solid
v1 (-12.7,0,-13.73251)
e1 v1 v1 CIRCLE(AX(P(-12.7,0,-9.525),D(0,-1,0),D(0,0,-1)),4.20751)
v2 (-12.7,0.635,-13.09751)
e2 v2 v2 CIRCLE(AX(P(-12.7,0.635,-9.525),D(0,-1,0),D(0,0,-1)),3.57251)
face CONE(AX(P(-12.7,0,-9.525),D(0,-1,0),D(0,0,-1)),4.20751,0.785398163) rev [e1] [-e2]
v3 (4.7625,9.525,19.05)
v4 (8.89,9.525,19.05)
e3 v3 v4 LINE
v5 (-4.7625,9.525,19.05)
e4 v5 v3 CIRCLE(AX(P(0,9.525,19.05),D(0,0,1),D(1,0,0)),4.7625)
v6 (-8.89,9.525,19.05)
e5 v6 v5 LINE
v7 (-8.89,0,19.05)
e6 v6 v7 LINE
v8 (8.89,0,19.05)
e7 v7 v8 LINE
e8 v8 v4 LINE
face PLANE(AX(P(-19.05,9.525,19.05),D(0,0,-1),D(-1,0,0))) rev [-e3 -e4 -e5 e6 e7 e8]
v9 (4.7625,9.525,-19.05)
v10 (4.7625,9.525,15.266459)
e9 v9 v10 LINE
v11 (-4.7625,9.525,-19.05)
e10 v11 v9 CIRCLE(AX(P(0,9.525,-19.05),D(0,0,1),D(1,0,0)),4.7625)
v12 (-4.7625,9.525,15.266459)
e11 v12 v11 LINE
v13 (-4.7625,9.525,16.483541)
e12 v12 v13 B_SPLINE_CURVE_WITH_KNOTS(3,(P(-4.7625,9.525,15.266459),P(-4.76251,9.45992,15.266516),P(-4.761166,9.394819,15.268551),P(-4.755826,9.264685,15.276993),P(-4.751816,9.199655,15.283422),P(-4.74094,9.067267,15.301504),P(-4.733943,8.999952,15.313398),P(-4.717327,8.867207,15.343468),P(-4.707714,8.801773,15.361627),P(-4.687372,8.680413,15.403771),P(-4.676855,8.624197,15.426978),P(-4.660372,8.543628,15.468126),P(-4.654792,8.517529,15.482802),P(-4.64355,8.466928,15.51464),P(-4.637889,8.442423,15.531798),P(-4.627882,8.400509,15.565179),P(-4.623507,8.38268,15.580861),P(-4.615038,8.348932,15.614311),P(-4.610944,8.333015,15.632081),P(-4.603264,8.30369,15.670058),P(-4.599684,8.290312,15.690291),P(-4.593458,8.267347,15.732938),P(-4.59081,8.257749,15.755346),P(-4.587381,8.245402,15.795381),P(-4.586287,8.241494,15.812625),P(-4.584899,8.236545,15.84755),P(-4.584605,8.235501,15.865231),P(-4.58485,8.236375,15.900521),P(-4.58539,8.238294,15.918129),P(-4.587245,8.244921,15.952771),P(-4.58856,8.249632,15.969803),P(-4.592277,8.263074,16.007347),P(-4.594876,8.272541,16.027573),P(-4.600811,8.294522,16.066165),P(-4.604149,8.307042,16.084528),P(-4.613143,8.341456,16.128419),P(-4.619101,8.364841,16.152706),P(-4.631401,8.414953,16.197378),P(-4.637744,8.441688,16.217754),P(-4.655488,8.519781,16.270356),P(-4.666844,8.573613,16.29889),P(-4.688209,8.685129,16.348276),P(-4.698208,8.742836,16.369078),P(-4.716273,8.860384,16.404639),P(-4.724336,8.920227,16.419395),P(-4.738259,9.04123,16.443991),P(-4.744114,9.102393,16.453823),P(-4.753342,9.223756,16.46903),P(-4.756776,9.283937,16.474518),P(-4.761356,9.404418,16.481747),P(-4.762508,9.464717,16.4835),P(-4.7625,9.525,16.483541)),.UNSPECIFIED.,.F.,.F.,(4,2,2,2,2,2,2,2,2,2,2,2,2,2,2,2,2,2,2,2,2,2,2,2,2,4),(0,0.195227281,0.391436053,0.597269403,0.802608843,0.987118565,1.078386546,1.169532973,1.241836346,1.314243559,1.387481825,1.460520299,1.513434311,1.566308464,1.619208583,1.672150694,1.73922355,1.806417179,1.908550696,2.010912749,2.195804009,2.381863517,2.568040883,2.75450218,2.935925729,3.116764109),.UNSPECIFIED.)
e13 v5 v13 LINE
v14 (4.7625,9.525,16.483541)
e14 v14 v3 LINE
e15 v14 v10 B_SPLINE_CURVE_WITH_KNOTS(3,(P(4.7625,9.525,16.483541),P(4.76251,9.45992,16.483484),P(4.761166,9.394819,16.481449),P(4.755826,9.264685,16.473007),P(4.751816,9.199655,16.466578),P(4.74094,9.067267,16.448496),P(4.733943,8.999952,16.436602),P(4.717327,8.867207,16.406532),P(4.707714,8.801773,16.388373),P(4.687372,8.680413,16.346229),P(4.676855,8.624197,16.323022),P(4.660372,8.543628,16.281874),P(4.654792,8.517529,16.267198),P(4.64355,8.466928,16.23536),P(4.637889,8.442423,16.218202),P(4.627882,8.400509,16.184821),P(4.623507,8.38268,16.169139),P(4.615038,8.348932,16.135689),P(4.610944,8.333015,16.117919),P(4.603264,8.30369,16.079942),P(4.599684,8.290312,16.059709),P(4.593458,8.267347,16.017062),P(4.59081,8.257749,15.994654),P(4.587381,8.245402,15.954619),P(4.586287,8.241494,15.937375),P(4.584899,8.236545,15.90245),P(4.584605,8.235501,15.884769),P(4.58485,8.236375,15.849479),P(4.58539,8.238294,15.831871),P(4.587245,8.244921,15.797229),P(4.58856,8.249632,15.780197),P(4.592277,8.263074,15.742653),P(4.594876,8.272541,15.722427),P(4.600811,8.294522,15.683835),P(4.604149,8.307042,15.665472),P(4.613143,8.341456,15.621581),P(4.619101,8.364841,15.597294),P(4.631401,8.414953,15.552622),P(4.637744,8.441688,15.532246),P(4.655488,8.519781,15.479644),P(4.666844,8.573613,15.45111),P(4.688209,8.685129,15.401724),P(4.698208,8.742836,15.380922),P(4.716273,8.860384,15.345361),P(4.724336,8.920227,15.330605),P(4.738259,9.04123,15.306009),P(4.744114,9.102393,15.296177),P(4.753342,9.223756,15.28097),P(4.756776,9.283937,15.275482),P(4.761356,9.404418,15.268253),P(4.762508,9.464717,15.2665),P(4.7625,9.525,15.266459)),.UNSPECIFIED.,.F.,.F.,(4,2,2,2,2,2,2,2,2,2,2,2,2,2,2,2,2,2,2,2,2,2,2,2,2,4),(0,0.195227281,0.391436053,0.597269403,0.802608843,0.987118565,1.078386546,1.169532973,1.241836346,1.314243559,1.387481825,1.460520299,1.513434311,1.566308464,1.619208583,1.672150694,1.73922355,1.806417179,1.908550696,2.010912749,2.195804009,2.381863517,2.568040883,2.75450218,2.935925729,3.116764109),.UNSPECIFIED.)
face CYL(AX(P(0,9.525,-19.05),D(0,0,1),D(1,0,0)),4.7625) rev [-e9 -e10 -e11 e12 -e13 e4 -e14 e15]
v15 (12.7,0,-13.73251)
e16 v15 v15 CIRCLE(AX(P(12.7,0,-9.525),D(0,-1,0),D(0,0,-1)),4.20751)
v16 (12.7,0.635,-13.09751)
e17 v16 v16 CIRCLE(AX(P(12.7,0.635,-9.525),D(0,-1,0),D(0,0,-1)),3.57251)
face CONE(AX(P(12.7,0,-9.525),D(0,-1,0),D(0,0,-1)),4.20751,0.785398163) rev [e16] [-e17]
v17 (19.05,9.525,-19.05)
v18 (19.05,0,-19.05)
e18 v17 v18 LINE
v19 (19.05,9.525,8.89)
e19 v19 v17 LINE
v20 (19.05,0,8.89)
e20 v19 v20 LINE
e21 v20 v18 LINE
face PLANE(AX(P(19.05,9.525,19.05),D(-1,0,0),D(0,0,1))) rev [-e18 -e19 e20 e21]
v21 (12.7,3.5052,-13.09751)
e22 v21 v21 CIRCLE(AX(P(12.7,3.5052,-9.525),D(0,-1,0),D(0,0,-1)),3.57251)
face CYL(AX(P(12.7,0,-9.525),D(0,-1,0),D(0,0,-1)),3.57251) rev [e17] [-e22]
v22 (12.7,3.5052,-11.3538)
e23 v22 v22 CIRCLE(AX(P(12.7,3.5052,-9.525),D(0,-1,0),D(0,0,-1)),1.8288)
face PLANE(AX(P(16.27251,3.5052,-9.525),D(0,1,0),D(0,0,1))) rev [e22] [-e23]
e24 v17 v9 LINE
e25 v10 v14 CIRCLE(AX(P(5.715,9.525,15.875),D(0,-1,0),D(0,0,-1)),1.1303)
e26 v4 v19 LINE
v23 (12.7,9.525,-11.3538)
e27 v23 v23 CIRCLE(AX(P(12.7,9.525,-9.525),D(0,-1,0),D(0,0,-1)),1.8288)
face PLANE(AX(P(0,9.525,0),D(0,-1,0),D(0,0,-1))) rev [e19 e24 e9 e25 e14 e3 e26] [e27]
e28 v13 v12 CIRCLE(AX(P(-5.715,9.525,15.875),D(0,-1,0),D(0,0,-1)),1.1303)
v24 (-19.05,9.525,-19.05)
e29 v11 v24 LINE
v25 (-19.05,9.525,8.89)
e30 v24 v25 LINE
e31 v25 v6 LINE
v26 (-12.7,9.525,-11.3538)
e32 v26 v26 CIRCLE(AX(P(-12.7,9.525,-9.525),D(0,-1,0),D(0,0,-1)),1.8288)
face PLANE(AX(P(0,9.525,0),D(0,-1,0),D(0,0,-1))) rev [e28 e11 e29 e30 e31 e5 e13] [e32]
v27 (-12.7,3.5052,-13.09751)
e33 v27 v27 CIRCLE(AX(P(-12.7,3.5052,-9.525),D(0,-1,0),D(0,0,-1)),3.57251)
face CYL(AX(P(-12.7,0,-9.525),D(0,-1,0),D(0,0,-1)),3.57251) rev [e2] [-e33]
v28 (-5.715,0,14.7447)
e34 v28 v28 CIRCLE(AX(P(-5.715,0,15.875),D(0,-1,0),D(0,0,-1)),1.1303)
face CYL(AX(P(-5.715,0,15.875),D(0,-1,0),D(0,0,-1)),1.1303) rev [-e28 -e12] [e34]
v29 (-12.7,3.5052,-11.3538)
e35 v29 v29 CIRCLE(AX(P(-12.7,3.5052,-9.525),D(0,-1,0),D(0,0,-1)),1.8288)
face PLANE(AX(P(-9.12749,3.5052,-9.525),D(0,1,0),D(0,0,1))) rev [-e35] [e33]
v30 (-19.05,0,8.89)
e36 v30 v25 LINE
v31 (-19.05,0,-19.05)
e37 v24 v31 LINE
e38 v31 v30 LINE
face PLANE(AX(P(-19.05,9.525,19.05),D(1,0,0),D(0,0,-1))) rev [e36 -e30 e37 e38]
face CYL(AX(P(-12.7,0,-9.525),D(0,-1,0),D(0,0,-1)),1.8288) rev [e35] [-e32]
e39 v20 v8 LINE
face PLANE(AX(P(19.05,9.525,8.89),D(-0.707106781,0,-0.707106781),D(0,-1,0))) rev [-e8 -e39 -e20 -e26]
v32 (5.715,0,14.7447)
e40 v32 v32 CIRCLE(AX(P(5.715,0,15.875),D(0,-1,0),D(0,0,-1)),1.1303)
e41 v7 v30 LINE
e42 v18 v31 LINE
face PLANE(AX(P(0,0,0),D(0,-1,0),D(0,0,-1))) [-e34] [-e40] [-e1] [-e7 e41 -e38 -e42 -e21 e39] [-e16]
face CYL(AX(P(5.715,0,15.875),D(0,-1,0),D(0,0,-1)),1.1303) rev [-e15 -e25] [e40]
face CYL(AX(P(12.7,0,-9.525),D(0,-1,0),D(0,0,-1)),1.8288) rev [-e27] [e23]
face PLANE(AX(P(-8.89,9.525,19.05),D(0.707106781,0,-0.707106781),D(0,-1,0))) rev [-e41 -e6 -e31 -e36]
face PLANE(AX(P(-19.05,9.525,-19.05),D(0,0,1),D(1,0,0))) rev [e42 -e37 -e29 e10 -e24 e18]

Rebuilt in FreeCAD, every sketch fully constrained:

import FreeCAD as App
import Part
import Sketcher
from FreeCAD import Vector
Q = App.Units.Quantity


def edges_at(feature, points):
    """Names of the edges that pass closest to the given points."""
    edges = feature.Shape.Edges
    near = lambda p: min(range(len(edges)), key=lambda i: edges[i].distToShape(Part.Vertex(*p))[0])
    return sorted({f"Edge{near(p) + 1}" for p in points})

doc = App.newDocument("Part")
params = doc.addObject("Spreadsheet::Sheet", "Params")
for row, (alias, value) in enumerate([
    ("sketch1_width", "1.5 in"),
    ("pad1_length", "0.375 in"),
    ("sketch2_diameter", "0.375 in"),
    ("sketch3_diameter", "0.089 in"),
    ("hole_diameter", "0.089 in"),
    ("sketch4_width", "0.375 in"),
    ("sketch4_width2", "0.113 in"),
    ("sketch4_width3", "0.237 in"),
    ("sketch4_height", "0.072 in"),
    ("groove_angle", "360 deg"),
    ("linearpattern_pitch", "1 in"),
    ("chamfer_size", "0.4 in"),
], start=1):
    params.set(f"A{row}", alias)
    params.set(f"B{row}", "=" + value)
    params.setAlias(f"B{row}", alias)

body = doc.addObject("PartDesign::Body", "Body")

# Sketch on XZ plane
sketch1 = body.newObject("Sketcher::SketchObject", "Sketch")
sketch1.AttachmentSupport = (doc.getObject("XZ_Plane"), [""])
sketch1.MapMode = "FlatFace"
sketch1.addGeometry([
    Part.LineSegment(Vector(-19.05, -19.05, 0), Vector(-19.05, 19.05, 0)),
    Part.LineSegment(Vector(-19.05, 19.05, 0), Vector(19.05, 19.05, 0)),
    Part.LineSegment(Vector(19.05, 19.05, 0), Vector(19.05, -19.05, 0)),
    Part.LineSegment(Vector(19.05, -19.05, 0), Vector(-19.05, -19.05, 0)),
], False)
sketch1.addConstraint([
    Sketcher.Constraint("Coincident", 0, 2, 1, 1),
    Sketcher.Constraint("Coincident", 1, 2, 2, 1),
    Sketcher.Constraint("Coincident", 2, 2, 3, 1),
    Sketcher.Constraint("Coincident", 3, 2, 0, 1),
    Sketcher.Constraint("Vertical", 0),
    Sketcher.Constraint("Horizontal", 1),
    Sketcher.Constraint("Vertical", 2),
    Sketcher.Constraint("Horizontal", 3),
    Sketcher.Constraint("Symmetric", 0, 2, 2, 2, -1, 1),
    Sketcher.Constraint("Equal", 3, 0),
    Sketcher.Constraint("DistanceX", 1, 1, 1, 2, Q("1.5 in")),
])
sketch1.setExpression("Constraints[10]", "Params.sketch1_width")
pad1 = body.newObject("PartDesign::Pad", "Pad")
pad1.Profile = sketch1
pad1.setExpression("Length", "Params.pad1_length")
pad1.Reversed = True

# Sketch on XY plane
sketch2 = body.newObject("Sketcher::SketchObject", "Sketch001")
sketch2.AttachmentSupport = (doc.getObject("XY_Plane"), [""])
sketch2.MapMode = "FlatFace"
sketch2.AttachmentOffset = App.Placement(Vector(0, 0, 0.75 * 25.4), App.Rotation())
sketch2.addGeometry(Part.Circle(Vector(0, 9.525, 0), Vector(0, 0, 1), 4.7625), False)
sketch2.addConstraint([
    Sketcher.Constraint("PointOnObject", 0, 3, -2),
    Sketcher.Constraint("Diameter", 0, Q("0.375 in")),
    Sketcher.Constraint("DistanceY", -1, 1, 0, 3, Q("0.375 in")),
])
sketch2.setExpression("Constraints[1]", "Params.sketch2_diameter")
pocket1 = body.newObject("PartDesign::Pocket", "Pocket")
pocket1.Profile = sketch2
pocket1.Type = "ThroughAll"

# Sketch on XZ plane
sketch3 = body.newObject("Sketcher::SketchObject", "Sketch002")
sketch3.AttachmentSupport = (doc.getObject("XZ_Plane"), [""])
sketch3.MapMode = "FlatFace"
sketch3.addGeometry([
    Part.Circle(Vector(5.715, 15.875, 0), Vector(0, 0, 1), 1.1303),
    Part.Circle(Vector(-5.715, 15.875, 0), Vector(0, 0, 1), 1.1303),
], False)
sketch3.addConstraint([
    Sketcher.Constraint("Equal", 0, 1),
    Sketcher.Constraint("Symmetric", 0, 3, 1, 3, -2),
    Sketcher.Constraint("Diameter", 0, Q("0.089 in")),
    Sketcher.Constraint("DistanceX", 1, 3, 0, 3, Q("0.45 in")),
    Sketcher.Constraint("DistanceY", -1, 1, 0, 3, Q("0.625 in")),
])
sketch3.setExpression("Constraints[2]", "Params.sketch3_diameter")
doc.recompute()
hole = body.newObject("PartDesign::Hole", "Hole")
hole.Profile = sketch3
hole.ThreadType = "None"
hole.setExpression("Diameter", "Params.hole_diameter")
hole.DepthType = "ThroughAll"

# Sketch on YZ plane
sketch4 = body.newObject("Sketcher::SketchObject", "Sketch003")
sketch4.AttachmentSupport = (doc.getObject("YZ_Plane"), [""])
sketch4.MapMode = "FlatFace"
sketch4.AttachmentOffset = App.Placement(Vector(0, 0, 0.5 * 25.4), App.Rotation())
sketch4.addGeometry([
    Part.LineSegment(Vector(9.525, -9.525, 0), Vector(0, -9.525, 0)),  # 0
    Part.LineSegment(Vector(0, -9.525, 0), Vector(0, -13.73251, 0)),  # 1
    Part.LineSegment(Vector(0, -13.73251, 0), Vector(0.635, -13.09751, 0)),  # 2
    Part.LineSegment(Vector(0.635, -13.09751, 0), Vector(3.5052, -13.09751, 0)),  # 3
    Part.LineSegment(Vector(3.5052, -13.09751, 0), Vector(3.5052, -11.3538, 0)),  # 4
    Part.LineSegment(Vector(3.5052, -11.3538, 0), Vector(9.525, -11.3538, 0)),  # 5
    Part.LineSegment(Vector(9.525, -11.3538, 0), Vector(9.525, -9.525, 0)),  # 6
], False)
sketch4.addGeometry(Part.LineSegment(Vector(0, -9.525, 0), Vector(9.525, -9.525, 0)), True)  # axis
sketch4.addConstraint([
    Sketcher.Constraint("Coincident", 0, 2, 1, 1),
    Sketcher.Constraint("Coincident", 1, 2, 2, 1),
    Sketcher.Constraint("Coincident", 2, 2, 3, 1),
    Sketcher.Constraint("Coincident", 3, 2, 4, 1),
    Sketcher.Constraint("Coincident", 4, 2, 5, 1),
    Sketcher.Constraint("Coincident", 5, 2, 6, 1),
    Sketcher.Constraint("Coincident", 6, 2, 0, 1),
    Sketcher.Constraint("Horizontal", 0),
    Sketcher.Constraint("Vertical", 1),
    Sketcher.Constraint("Horizontal", 3),
    Sketcher.Constraint("Vertical", 4),
    Sketcher.Constraint("Horizontal", 5),
    Sketcher.Constraint("Vertical", 6),
    Sketcher.Constraint("Horizontal", 7),
    Sketcher.Constraint("Coincident", 7, 1, 0, 2),
    Sketcher.Constraint("PointOnObject", 0, 2, -2),
    Sketcher.Constraint("Vertical", 5, 2, 7, 2),
    Sketcher.Constraint("Angle", 2, Q("45 deg")),
    Sketcher.Constraint("DistanceX", 0, 2, 0, 1, Q("0.375 in")),
    Sketcher.Constraint("DistanceX", 3, 1, 3, 2, Q("0.113 in")),
    Sketcher.Constraint("DistanceX", 5, 1, 5, 2, Q("0.237 in")),
    Sketcher.Constraint("DistanceY", 6, 1, 6, 2, Q("0.072 in")),
    Sketcher.Constraint("DistanceY", 0, 2, -1, 1, Q("0.375 in")),
    Sketcher.Constraint("DistanceY", 1, 2, 1, 1, 4.20751),
])
sketch4.setExpression("Constraints[18]", "Params.sketch4_width")
sketch4.setExpression("Constraints[19]", "Params.sketch4_width2")
sketch4.setExpression("Constraints[20]", "Params.sketch4_width3")
sketch4.setExpression("Constraints[21]", "Params.sketch4_height")
groove = body.newObject("PartDesign::Groove", "Groove")
groove.Profile = sketch4
groove.ReferenceAxis = (sketch4, ["Axis0"])
groove.setExpression("Angle", "Params.groove_angle")
doc.recompute()

linearpattern = body.newObject("PartDesign::LinearPattern", "LinearPattern")
linearpattern.Originals = [groove]
linearpattern.Direction = (doc.getObject("X_Axis"), [""])
linearpattern.Mode = "offset"
linearpattern.setExpression("Offset", "Params.linearpattern_pitch")
linearpattern.Occurrences = 2
linearpattern.Reversed = True
body.Tip = linearpattern
doc.recompute()

chamfer = body.newObject("PartDesign::Chamfer", "Chamfer")
chamfer.Base = (linearpattern, edges_at(linearpattern, [(19.05, 4.763, 19.05), (-19.05, 4.763, 19.05)]))
chamfer.setExpression("Size", "Params.chamfer_size")

doc.recompute()
